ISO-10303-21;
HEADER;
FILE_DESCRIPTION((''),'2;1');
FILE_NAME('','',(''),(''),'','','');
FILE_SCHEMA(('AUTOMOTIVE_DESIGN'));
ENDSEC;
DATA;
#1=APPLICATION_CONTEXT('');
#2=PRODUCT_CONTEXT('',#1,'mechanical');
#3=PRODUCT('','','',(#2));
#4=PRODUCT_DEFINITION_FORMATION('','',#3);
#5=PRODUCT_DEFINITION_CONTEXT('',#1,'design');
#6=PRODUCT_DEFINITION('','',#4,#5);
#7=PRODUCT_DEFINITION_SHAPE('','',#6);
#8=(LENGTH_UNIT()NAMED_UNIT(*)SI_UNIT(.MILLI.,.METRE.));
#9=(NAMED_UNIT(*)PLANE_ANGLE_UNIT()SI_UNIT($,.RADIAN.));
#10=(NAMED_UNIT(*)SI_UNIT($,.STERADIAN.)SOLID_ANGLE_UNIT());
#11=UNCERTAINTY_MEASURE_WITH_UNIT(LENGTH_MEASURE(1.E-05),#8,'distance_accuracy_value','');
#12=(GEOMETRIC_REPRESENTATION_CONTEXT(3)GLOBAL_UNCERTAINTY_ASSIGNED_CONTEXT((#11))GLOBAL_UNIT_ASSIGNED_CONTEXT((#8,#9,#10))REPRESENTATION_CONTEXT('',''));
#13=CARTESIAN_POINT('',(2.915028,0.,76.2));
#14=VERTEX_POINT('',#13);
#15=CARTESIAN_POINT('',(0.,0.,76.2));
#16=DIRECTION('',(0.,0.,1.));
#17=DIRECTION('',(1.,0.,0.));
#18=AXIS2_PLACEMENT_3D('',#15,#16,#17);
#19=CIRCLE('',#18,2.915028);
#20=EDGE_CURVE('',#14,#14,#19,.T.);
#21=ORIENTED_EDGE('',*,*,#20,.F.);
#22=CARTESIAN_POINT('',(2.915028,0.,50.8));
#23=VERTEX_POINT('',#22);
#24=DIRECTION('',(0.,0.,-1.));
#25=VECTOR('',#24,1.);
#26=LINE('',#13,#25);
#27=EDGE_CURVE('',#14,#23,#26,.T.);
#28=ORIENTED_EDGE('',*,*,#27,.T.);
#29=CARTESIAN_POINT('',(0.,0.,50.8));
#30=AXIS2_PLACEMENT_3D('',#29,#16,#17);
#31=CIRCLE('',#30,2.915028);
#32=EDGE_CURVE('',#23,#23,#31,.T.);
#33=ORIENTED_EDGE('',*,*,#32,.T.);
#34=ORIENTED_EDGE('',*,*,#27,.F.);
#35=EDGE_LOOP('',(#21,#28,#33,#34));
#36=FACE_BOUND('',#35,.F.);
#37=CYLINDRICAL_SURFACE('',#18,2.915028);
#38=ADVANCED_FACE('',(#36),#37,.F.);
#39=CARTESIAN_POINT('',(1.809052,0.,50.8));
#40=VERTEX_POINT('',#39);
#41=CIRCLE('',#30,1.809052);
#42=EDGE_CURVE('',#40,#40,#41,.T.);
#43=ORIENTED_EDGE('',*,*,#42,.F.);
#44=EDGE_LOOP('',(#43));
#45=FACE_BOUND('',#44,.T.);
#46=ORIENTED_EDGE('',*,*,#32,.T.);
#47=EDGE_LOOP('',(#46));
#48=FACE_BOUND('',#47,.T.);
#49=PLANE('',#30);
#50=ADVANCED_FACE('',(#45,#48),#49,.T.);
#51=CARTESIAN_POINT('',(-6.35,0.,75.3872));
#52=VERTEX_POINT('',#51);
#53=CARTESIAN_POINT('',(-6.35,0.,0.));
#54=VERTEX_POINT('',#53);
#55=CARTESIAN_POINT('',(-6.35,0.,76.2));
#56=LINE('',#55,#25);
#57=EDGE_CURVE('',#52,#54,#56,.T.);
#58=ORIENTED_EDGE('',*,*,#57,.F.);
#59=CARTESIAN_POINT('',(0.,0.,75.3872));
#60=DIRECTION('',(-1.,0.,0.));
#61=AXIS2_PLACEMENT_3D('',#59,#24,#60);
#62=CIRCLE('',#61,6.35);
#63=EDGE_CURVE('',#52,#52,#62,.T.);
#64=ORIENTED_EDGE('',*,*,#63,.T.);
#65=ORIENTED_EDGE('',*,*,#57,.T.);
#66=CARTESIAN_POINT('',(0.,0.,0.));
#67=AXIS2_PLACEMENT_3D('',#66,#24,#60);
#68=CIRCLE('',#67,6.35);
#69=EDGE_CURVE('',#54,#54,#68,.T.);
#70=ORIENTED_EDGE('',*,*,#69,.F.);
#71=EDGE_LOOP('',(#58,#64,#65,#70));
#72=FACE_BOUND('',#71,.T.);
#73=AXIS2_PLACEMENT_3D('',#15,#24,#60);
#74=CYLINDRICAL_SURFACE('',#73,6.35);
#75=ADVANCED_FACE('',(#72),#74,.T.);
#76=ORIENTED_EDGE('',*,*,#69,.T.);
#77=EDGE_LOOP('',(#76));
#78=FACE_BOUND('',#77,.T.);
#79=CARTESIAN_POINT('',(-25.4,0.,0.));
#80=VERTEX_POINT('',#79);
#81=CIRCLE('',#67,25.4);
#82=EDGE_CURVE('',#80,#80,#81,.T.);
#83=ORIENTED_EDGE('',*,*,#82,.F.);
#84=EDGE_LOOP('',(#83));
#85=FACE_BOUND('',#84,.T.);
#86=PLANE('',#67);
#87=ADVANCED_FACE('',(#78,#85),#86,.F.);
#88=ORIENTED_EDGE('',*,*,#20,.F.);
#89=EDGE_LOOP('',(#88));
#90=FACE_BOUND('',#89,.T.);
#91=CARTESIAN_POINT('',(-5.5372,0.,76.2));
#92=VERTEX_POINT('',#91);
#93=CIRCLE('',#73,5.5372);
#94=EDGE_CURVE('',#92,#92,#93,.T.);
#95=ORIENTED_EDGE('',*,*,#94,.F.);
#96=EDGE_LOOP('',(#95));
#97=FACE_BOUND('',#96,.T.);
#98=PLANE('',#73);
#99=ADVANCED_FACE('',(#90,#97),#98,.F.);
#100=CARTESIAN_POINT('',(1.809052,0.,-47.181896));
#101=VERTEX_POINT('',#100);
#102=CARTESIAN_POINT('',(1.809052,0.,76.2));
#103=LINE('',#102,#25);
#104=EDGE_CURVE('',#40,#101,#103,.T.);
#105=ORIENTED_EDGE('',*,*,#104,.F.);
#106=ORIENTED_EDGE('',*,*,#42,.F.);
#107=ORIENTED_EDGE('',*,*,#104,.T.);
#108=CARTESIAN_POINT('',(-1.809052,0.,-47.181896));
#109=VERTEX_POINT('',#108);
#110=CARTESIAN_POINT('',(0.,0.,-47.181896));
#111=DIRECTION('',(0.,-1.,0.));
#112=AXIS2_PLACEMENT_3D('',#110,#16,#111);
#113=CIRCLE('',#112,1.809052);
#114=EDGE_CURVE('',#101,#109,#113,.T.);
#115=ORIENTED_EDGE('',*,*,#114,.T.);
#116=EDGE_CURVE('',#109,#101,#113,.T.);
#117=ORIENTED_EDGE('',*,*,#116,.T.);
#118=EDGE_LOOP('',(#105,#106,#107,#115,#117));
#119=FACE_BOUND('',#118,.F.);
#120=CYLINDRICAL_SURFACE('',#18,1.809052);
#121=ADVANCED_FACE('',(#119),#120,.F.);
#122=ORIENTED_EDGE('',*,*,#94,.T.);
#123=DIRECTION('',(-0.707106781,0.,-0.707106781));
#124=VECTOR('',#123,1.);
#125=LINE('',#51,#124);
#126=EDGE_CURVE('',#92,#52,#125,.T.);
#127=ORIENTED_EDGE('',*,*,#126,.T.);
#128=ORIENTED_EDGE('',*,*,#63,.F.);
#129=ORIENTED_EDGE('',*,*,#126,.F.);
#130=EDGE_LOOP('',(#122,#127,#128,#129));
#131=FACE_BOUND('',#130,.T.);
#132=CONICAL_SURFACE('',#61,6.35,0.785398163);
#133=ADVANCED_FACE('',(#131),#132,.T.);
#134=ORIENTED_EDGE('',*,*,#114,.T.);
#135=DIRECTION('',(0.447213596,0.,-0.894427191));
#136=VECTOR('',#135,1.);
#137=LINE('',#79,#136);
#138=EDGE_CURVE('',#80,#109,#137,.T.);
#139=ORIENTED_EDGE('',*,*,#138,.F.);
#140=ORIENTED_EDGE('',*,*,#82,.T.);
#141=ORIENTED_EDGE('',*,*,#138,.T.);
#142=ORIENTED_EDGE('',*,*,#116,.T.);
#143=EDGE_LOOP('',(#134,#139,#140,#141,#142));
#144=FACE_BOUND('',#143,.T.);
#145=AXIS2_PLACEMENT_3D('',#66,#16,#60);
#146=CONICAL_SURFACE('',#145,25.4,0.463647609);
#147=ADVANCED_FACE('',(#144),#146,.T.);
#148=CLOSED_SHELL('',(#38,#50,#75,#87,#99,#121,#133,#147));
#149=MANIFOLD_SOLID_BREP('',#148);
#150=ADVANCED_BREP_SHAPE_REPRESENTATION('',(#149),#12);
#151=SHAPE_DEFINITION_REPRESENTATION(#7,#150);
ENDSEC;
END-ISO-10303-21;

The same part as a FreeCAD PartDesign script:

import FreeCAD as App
import Part
import Sketcher

V = App.Vector
Q = App.Units.Quantity


def edges_at(feature, points):
    """Names of the edges that pass closest to the given points."""
    edges = feature.Shape.Edges
    near = lambda p: min(range(len(edges)), key=lambda i: edges[i].distToShape(Part.Vertex(*p))[0])
    return sorted({f"Edge{near(p) + 1}" for p in points})


def add_polygon(sketch, points):
    """Adds a closed chain of lines whose ends are joined by coincident constraints."""
    first, n = sketch.GeometryCount, len(points)
    for a, b in zip(points, points[1:] + points[:1]):
        sketch.addGeometry(Part.LineSegment(App.Vector(*a, 0), App.Vector(*b, 0)), False)
    for i in range(n):
        sketch.addConstraint(Sketcher.Constraint("Coincident", first + i, 2, first + (i + 1) % n, 1))

doc = App.newDocument("Part")
body = doc.addObject("PartDesign::Body", "Body")

# Sketch on XZ plane
sketch1 = doc.addObject("Sketcher::SketchObject", "Sketch")
body.addObject(sketch1)
sketch1.AttachmentSupport = (doc.XZ_Plane, [""])
sketch1.MapMode = "FlatFace"
add_polygon(sketch1, [(0, -51), (0, 76), (-6, 76), (-6, 0), (-25, 0)])  # lines 0-4
sketch1.addConstraint([
    Sketcher.Constraint("Vertical", 0),
    Sketcher.Constraint("Horizontal", 1),
    Sketcher.Constraint("Vertical", 2),
    Sketcher.Constraint("Horizontal", 3),
    Sketcher.Constraint("PointOnObject", 0, 2, -2),
    Sketcher.Constraint("PointOnObject", 2, 2, -1),
    Sketcher.Constraint("DistanceY", 0, 1, 0, 2, Q("5 in")),
    Sketcher.Constraint("DistanceY", 2, 2, 2, 1, Q("3 in")),
    Sketcher.Constraint("DistanceX", 3, 2, -1, 1, Q("1 in")),
    Sketcher.Constraint("DistanceX", 1, 2, 1, 1, Q("0.25 in")),
])
revolution = doc.addObject("PartDesign::Revolution", "Revolution")
body.addObject(revolution)
revolution.Profile = sketch1
revolution.ReferenceAxis = (sketch1, ["V_Axis"])
revolution.Angle = 360

# Sketch on XY plane
sketch2 = doc.addObject("Sketcher::SketchObject", "Sketch001")
body.addObject(sketch2)
sketch2.AttachmentSupport = (doc.XY_Plane, [""])
sketch2.MapMode = "FlatFace"
sketch2.AttachmentOffset = App.Placement(V(0, 0, 3 * 25.4), App.Rotation())
sketch2.addGeometry(Part.Circle(V(0, 0, 0), V(0, 0, 1), 2.9), False)
sketch2.addConstraint([
    Sketcher.Constraint("Coincident", 0, 3, -1, 1),
    Sketcher.Constraint("Diameter", 0, 5.830056),
])
pocket1 = doc.addObject("PartDesign::Pocket", "Pocket")
body.addObject(pocket1)
pocket1.Profile = sketch2
pocket1.Length = Q("1 in")
doc.recompute()

chamfer = doc.addObject("PartDesign::Chamfer", "Chamfer")
body.addObject(chamfer)
chamfer.Base = (pocket1, edges_at(pocket1, [(6.35, 0, 76.2)]))
chamfer.Size = Q("0.032 in")

# Sketch on XY plane
sketch3 = doc.addObject("Sketcher::SketchObject", "Sketch002")
body.addObject(sketch3)
sketch3.AttachmentSupport = (doc.XY_Plane, [""])
sketch3.MapMode = "FlatFace"
sketch3.AttachmentOffset = App.Placement(V(0, 0, 3 * 25.4), App.Rotation())
sketch3.addGeometry(Part.Circle(V(0, 0, 0), V(0, 0, 1), 1.8), False)
sketch3.addConstraint([
    Sketcher.Constraint("Coincident", 0, 3, -1, 1),
    Sketcher.Constraint("Diameter", 0, 3.618104),
])
pocket2 = doc.addObject("PartDesign::Pocket", "Pocket001")
body.addObject(pocket2)
pocket2.Profile = sketch3
pocket2.Type = "ThroughAll"

doc.recompute()
